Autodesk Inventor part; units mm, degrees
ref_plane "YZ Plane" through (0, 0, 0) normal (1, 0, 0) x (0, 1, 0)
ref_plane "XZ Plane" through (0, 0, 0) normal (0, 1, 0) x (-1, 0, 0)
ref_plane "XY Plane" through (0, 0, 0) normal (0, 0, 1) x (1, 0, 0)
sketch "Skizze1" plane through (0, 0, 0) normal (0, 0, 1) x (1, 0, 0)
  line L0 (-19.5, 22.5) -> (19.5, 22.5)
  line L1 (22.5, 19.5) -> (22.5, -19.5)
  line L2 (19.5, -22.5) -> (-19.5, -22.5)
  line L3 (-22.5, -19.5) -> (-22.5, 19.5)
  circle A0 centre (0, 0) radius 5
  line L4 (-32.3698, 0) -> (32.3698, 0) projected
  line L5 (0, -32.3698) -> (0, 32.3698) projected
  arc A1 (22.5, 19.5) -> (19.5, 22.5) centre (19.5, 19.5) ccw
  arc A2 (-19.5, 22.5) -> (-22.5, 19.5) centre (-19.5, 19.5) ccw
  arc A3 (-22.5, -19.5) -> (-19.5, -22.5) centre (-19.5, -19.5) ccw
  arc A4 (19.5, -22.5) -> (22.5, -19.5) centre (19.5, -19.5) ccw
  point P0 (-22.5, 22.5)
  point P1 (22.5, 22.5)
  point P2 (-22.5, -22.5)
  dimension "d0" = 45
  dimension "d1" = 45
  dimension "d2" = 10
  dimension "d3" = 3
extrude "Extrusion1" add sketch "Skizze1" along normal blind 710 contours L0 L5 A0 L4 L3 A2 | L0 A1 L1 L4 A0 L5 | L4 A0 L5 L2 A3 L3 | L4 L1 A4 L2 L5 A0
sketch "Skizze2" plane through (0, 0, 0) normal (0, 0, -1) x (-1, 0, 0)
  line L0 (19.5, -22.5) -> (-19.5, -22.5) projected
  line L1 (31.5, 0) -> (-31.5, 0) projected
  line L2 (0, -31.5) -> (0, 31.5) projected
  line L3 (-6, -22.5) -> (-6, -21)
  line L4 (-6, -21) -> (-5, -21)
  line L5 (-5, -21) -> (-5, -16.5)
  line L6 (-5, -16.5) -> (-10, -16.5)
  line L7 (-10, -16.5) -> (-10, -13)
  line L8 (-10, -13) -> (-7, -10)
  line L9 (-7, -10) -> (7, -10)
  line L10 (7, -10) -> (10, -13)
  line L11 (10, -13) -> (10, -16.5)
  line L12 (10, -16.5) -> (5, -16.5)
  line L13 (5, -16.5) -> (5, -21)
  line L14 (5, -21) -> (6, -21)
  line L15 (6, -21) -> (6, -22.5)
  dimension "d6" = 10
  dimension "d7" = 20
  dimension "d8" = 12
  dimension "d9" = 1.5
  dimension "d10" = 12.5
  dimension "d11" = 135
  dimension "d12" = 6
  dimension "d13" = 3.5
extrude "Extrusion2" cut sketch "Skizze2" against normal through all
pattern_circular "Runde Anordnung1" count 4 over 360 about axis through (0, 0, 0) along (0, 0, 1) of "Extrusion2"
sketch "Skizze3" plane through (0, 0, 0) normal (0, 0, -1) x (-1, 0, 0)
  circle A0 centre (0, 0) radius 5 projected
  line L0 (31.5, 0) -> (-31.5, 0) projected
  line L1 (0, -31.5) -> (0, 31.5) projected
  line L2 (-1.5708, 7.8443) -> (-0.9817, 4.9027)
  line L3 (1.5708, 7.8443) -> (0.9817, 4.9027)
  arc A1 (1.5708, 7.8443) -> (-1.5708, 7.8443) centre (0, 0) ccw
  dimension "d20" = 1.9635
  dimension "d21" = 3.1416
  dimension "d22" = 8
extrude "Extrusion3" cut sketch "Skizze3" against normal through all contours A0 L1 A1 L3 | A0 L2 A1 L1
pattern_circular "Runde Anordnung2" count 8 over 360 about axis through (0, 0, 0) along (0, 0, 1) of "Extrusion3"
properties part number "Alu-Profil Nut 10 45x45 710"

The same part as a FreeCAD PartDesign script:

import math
import FreeCAD as App
import Part
import Sketcher
from FreeCAD import Vector
Q = App.Units.Quantity

doc = App.newDocument("Part")
body = doc.addObject("PartDesign::Body", "Body")

# Sketch on XY plane
sketch1 = doc.addObject("Sketcher::SketchObject", "Sketch")
body.addObject(sketch1)
sketch1.AttachmentSupport = (doc.XY_Plane, [""])
sketch1.MapMode = "FlatFace"
sketch1.addGeometry(Part.ArcOfCircle(Part.Circle(Vector(-19.5, 19.5, 0), Vector(0, 0, 1), 3), math.radians(90), math.radians(180)), False)
sketch1.addGeometry(Part.LineSegment(Vector(-22.5, 19.5, 0), Vector(-22.5, -19.5, 0)), False)
sketch1.addGeometry(Part.ArcOfCircle(Part.Circle(Vector(-19.5, -19.5, 0), Vector(0, 0, 1), 3), math.radians(180), math.radians(270)), False)
sketch1.addGeometry(Part.LineSegment(Vector(-19.5, -22.5, 0), Vector(19.5, -22.5, 0)), False)
sketch1.addGeometry(Part.ArcOfCircle(Part.Circle(Vector(19.5, -19.5, 0), Vector(0, 0, 1), 3), math.radians(-90), math.radians(0)), False)
sketch1.addGeometry(Part.LineSegment(Vector(22.5, -19.5, 0), Vector(22.5, 19.5, 0)), False)
sketch1.addGeometry(Part.ArcOfCircle(Part.Circle(Vector(19.5, 19.5, 0), Vector(0, 0, 1), 3), math.radians(0), math.radians(90)), False)
sketch1.addGeometry(Part.LineSegment(Vector(19.5, 22.5, 0), Vector(-19.5, 22.5, 0)), False)
sketch1.addGeometry(Part.Circle(Vector(0, 0, 0), Vector(0, 0, 1), 5), False)
sketch1.addConstraint(Sketcher.Constraint("Tangent", 0, 2, 1, 1))
sketch1.addConstraint(Sketcher.Constraint("Tangent", 1, 2, 2, 1))
sketch1.addConstraint(Sketcher.Constraint("Tangent", 2, 2, 3, 1))
sketch1.addConstraint(Sketcher.Constraint("Tangent", 3, 2, 4, 1))
sketch1.addConstraint(Sketcher.Constraint("Tangent", 4, 2, 5, 1))
sketch1.addConstraint(Sketcher.Constraint("Tangent", 5, 2, 6, 1))
sketch1.addConstraint(Sketcher.Constraint("Tangent", 6, 2, 7, 1))
sketch1.addConstraint(Sketcher.Constraint("Tangent", 7, 2, 0, 1))
sketch1.addConstraint(Sketcher.Constraint("Vertical", 1))
sketch1.addConstraint(Sketcher.Constraint("Horizontal", 3))
sketch1.addConstraint(Sketcher.Constraint("Vertical", 5))
sketch1.addConstraint(Sketcher.Constraint("Horizontal", 7))
sketch1.addConstraint(Sketcher.Constraint("Coincident", 8, 3, -1, 1))
sketch1.addConstraint(Sketcher.Constraint("Equal", 0, 2))
sketch1.addConstraint(Sketcher.Constraint("Equal", 2, 4))
sketch1.addConstraint(Sketcher.Constraint("Equal", 4, 6))
sketch1.addConstraint(Sketcher.Constraint("Symmetric", 0, 3, 4, 3, -1, 1))
sketch1.addConstraint(Sketcher.Constraint("Equal", 7, 1))
sketch1.addConstraint(Sketcher.Constraint("Diameter", 8, Q("10 mm")))
sketch1.addConstraint(Sketcher.Constraint("Radius", 0, Q("3 mm")))
sketch1.addConstraint(Sketcher.Constraint("DistanceX", 3, 1, 3, 2, Q("39 mm")))
pad1 = doc.addObject("PartDesign::Pad", "Pad")
body.addObject(pad1)
pad1.Profile = sketch1
pad1.Length = 710

# Sketch on XY plane
sketch2 = doc.addObject("Sketcher::SketchObject", "Sketch001")
body.addObject(sketch2)
sketch2.AttachmentSupport = (doc.XY_Plane, [""])
sketch2.MapMode = "FlatFace"
sketch2.addGeometry(Part.LineSegment(Vector(-6, -22.5, 0), Vector(-6, -21, 0)), False)
sketch2.addGeometry(Part.LineSegment(Vector(-6, -21, 0), Vector(-5, -21, 0)), False)
sketch2.addGeometry(Part.LineSegment(Vector(-5, -21, 0), Vector(-5, -16.5, 0)), False)
sketch2.addGeometry(Part.LineSegment(Vector(-5, -16.5, 0), Vector(-10, -16.5, 0)), False)
sketch2.addGeometry(Part.LineSegment(Vector(-10, -16.5, 0), Vector(-10, -13, 0)), False)
sketch2.addGeometry(Part.LineSegment(Vector(-10, -13, 0), Vector(-7, -10, 0)), False)
sketch2.addGeometry(Part.LineSegment(Vector(-7, -10, 0), Vector(7, -10, 0)), False)
sketch2.addGeometry(Part.LineSegment(Vector(7, -10, 0), Vector(10, -13, 0)), False)
sketch2.addGeometry(Part.LineSegment(Vector(10, -13, 0), Vector(10, -16.5, 0)), False)
sketch2.addGeometry(Part.LineSegment(Vector(10, -16.5, 0), Vector(5, -16.5, 0)), False)
sketch2.addGeometry(Part.LineSegment(Vector(5, -16.5, 0), Vector(5, -21, 0)), False)
sketch2.addGeometry(Part.LineSegment(Vector(5, -21, 0), Vector(6, -21, 0)), False)
sketch2.addGeometry(Part.LineSegment(Vector(6, -21, 0), Vector(6, -22.5, 0)), False)
sketch2.addGeometry(Part.LineSegment(Vector(6, -22.5, 0), Vector(-6, -22.5, 0)), False)
sketch2.addConstraint(Sketcher.Constraint("Coincident", 0, 2, 1, 1))
sketch2.addConstraint(Sketcher.Constraint("Coincident", 1, 2, 2, 1))
sketch2.addConstraint(Sketcher.Constraint("Coincident", 2, 2, 3, 1))
sketch2.addConstraint(Sketcher.Constraint("Coincident", 3, 2, 4, 1))
sketch2.addConstraint(Sketcher.Constraint("Coincident", 4, 2, 5, 1))
sketch2.addConstraint(Sketcher.Constraint("Coincident", 5, 2, 6, 1))
sketch2.addConstraint(Sketcher.Constraint("Coincident", 6, 2, 7, 1))
sketch2.addConstraint(Sketcher.Constraint("Coincident", 7, 2, 8, 1))
sketch2.addConstraint(Sketcher.Constraint("Coincident", 8, 2, 9, 1))
sketch2.addConstraint(Sketcher.Constraint("Coincident", 9, 2, 10, 1))
sketch2.addConstraint(Sketcher.Constraint("Coincident", 10, 2, 11, 1))
sketch2.addConstraint(Sketcher.Constraint("Coincident", 11, 2, 12, 1))
sketch2.addConstraint(Sketcher.Constraint("Coincident", 12, 2, 13, 1))
sketch2.addConstraint(Sketcher.Constraint("Coincident", 13, 2, 0, 1))
sketch2.addConstraint(Sketcher.Constraint("Vertical", 0))
sketch2.addConstraint(Sketcher.Constraint("Horizontal", 1))
sketch2.addConstraint(Sketcher.Constraint("Vertical", 2))
sketch2.addConstraint(Sketcher.Constraint("Horizontal", 3))
sketch2.addConstraint(Sketcher.Constraint("Vertical", 4))
sketch2.addConstraint(Sketcher.Constraint("Horizontal", 6))
sketch2.addConstraint(Sketcher.Constraint("Vertical", 8))
sketch2.addConstraint(Sketcher.Constraint("Horizontal", 9))
sketch2.addConstraint(Sketcher.Constraint("Vertical", 10))
sketch2.addConstraint(Sketcher.Constraint("Horizontal", 11))
sketch2.addConstraint(Sketcher.Constraint("Vertical", 12))
sketch2.addConstraint(Sketcher.Constraint("Horizontal", 13))
sketch2.addConstraint(Sketcher.Constraint("Symmetric", 4, 2, 7, 2, -2))
sketch2.addConstraint(Sketcher.Constraint("Symmetric", 2, 2, 9, 2, -2))
sketch2.addConstraint(Sketcher.Constraint("Symmetric", 0, 2, 11, 2, -2))
sketch2.addConstraint(Sketcher.Constraint("Perpendicular", 5, 7))
sketch2.addConstraint(Sketcher.Constraint("Equal", 5, 7))
sketch2.addConstraint(Sketcher.Constraint("DistanceX", 13, 2, 13, 1, Q("12 mm")))
sketch2.addConstraint(Sketcher.Constraint("DistanceY", 0, 1, 0, 2, Q("1.5 mm")))
sketch2.addConstraint(Sketcher.Constraint("DistanceY", 4, 1, 4, 2, Q("3.5 mm")))
sketch2.addConstraint(Sketcher.Constraint("DistanceX", 3, 2, -1, 1, Q("10 mm")))
sketch2.addConstraint(Sketcher.Constraint("DistanceY", 5, 2, -1, 1, Q("10 mm")))
sketch2.addConstraint(Sketcher.Constraint("DistanceX", 2, 2, 6, 2, Q("12 mm")))
sketch2.addConstraint(Sketcher.Constraint("DistanceX", 2, 2, 9, 2, Q("10 mm")))
sketch2.addConstraint(Sketcher.Constraint("DistanceY", 12, 2, 9, 2, Q("6 mm")))
pocket1 = doc.addObject("PartDesign::Pocket", "Pocket")
body.addObject(pocket1)
pocket1.Profile = sketch2
pocket1.Type = "ThroughAll"
pocket1.Reversed = True
doc.recompute()

polarpattern = doc.addObject("PartDesign::PolarPattern", "PolarPattern")
body.addObject(polarpattern)
polarpattern.Originals = [pocket1]
polarpattern.Axis = (doc.Z_Axis, [""])
polarpattern.Angle = 360
polarpattern.Occurrences = 4
body.Tip = polarpattern

# Sketch on XY plane
sketch3 = doc.addObject("Sketcher::SketchObject", "Sketch002")
body.addObject(sketch3)
sketch3.AttachmentSupport = (doc.XY_Plane, [""])
sketch3.MapMode = "FlatFace"
sketch3.addGeometry(Part.LineSegment(Vector(-1, 4.9, 0), Vector(-1.6, 7.8, 0)), False)
sketch3.addGeometry(Part.ArcOfCircle(Part.Circle(Vector(0, 0, 0), Vector(0, 0, 1), 8), math.radians(79), math.radians(101)), False)
sketch3.addGeometry(Part.LineSegment(Vector(1.6, 7.8, 0), Vector(1, 4.9, 0)), False)
sketch3.addGeometry(Part.ArcOfCircle(Part.Circle(Vector(0, 0, 0), Vector(0, 0, 1), 5), math.radians(79), math.radians(101)), False)
sketch3.addConstraint(Sketcher.Constraint("Coincident", 0, 2, 1, 2))
sketch3.addConstraint(Sketcher.Constraint("Coincident", 1, 1, 2, 1))
sketch3.addConstraint(Sketcher.Constraint("Coincident", 2, 2, 3, 1))
sketch3.addConstraint(Sketcher.Constraint("Coincident", 3, 2, 0, 1))
sketch3.addConstraint(Sketcher.Constraint("Coincident", 1, 3, -1, 1))
sketch3.addConstraint(Sketcher.Constraint("Coincident", 3, 3, -1, 1))
sketch3.addConstraint(Sketcher.Constraint("Horizontal", 0, 2, 1, 1))
sketch3.addConstraint(Sketcher.Constraint("Horizontal", 2, 2, 3, 2))
sketch3.addConstraint(Sketcher.Constraint("Radius", 1, Q("8 mm")))
sketch3.addConstraint(Sketcher.Constraint("Radius", 3, Q("5 mm")))
sketch3.addConstraint(Sketcher.Constraint("DistanceX", 0, 2, 1, 1, Q("3.1416 mm")))
sketch3.addConstraint(Sketcher.Constraint("DistanceX", 3, 2, 2, 2, Q("1.9634 mm")))
pocket2 = doc.addObject("PartDesign::Pocket", "Pocket001")
body.addObject(pocket2)
pocket2.Profile = sketch3
pocket2.Type = "ThroughAll"
pocket2.Reversed = True
doc.recompute()

polarpattern2 = doc.addObject("PartDesign::PolarPattern", "PolarPattern001")
body.addObject(polarpattern2)
polarpattern2.Originals = [pocket2]
polarpattern2.Axis = (doc.Z_Axis, [""])
polarpattern2.Angle = 360
polarpattern2.Occurrences = 8
body.Tip = polarpattern2

doc.recompute()
